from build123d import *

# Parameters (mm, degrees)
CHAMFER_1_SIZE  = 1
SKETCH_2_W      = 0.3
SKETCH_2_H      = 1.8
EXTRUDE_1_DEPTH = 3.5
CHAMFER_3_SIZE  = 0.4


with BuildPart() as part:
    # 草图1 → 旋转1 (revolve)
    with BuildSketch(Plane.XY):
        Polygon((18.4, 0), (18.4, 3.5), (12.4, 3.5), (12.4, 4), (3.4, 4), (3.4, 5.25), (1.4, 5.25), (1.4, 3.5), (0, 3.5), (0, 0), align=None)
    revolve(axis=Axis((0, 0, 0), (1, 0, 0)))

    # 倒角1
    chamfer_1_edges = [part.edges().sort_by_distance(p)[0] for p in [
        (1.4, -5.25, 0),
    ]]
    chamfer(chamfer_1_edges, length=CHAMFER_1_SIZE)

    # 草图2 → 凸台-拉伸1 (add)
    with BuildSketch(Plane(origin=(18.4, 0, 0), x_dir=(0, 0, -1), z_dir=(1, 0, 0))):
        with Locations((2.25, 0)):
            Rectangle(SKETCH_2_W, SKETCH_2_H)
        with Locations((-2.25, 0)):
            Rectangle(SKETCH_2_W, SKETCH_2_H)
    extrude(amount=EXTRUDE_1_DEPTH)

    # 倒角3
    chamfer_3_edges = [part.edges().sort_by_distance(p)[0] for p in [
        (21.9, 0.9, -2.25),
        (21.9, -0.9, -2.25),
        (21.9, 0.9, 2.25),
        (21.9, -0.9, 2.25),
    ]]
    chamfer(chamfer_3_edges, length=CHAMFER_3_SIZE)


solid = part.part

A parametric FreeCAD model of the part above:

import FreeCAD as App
import Part
import Sketcher


def edges_at(feature, points):
    """Names of the edges that pass closest to the given points."""
    edges = feature.Shape.Edges
    near = lambda p: min(range(len(edges)), key=lambda i: edges[i].distToShape(Part.Vertex(*p))[0])
    return sorted({f"Edge{near(p) + 1}" for p in points})

doc = App.newDocument("Part")
body = doc.addObject("PartDesign::Body", "Body")

sketch1 = body.newObject("Sketcher::SketchObject", "Sketch")
sketch1.AttachmentSupport = (doc.getObject("XY_Plane"), [""])
sketch1.MapMode = "FlatFace"
sketch1.addGeometry([
    Part.LineSegment(App.Vector(18.4, 0, 0), App.Vector(18.4, 3.5, 0)),
    Part.LineSegment(App.Vector(18.4, 3.5, 0), App.Vector(12.4, 3.5, 0)),
    Part.LineSegment(App.Vector(12.4, 3.5, 0), App.Vector(12.4, 4, 0)),
    Part.LineSegment(App.Vector(12.4, 4, 0), App.Vector(3.4, 4, 0)),
    Part.LineSegment(App.Vector(3.4, 4, 0), App.Vector(3.4, 5.2, 0)),
    Part.LineSegment(App.Vector(3.4, 5.2, 0), App.Vector(1.4, 5.2, 0)),
    Part.LineSegment(App.Vector(1.4, 5.2, 0), App.Vector(1.4, 3.5, 0)),
    Part.LineSegment(App.Vector(1.4, 3.5, 0), App.Vector(0, 3.5, 0)),
    Part.LineSegment(App.Vector(0, 3.5, 0), App.Vector(0, 0, 0)),
    Part.LineSegment(App.Vector(0, 0, 0), App.Vector(18.4, 0, 0)),
], False)
sketch1.addConstraint([
    Sketcher.Constraint("Coincident", 0, 2, 1, 1),
    Sketcher.Constraint("Coincident", 1, 2, 2, 1),
    Sketcher.Constraint("Coincident", 2, 2, 3, 1),
    Sketcher.Constraint("Coincident", 3, 2, 4, 1),
    Sketcher.Constraint("Coincident", 4, 2, 5, 1),
    Sketcher.Constraint("Coincident", 5, 2, 6, 1),
    Sketcher.Constraint("Coincident", 6, 2, 7, 1),
    Sketcher.Constraint("Coincident", 7, 2, 8, 1),
    Sketcher.Constraint("Coincident", 8, 2, 9, 1),
    Sketcher.Constraint("Coincident", 9, 2, 0, 1),
    Sketcher.Constraint("Vertical", 0),
    Sketcher.Constraint("Horizontal", 1),
    Sketcher.Constraint("Vertical", 2),
    Sketcher.Constraint("Horizontal", 3),
    Sketcher.Constraint("Vertical", 4),
    Sketcher.Constraint("Horizontal", 5),
    Sketcher.Constraint("Vertical", 6),
    Sketcher.Constraint("Horizontal", 7),
    Sketcher.Constraint("Vertical", 8),
    Sketcher.Constraint("Horizontal", 9),
    Sketcher.Constraint("Coincident", 8, 2, -1, 1),
    Sketcher.Constraint("Horizontal", 1, 2, 6, 2),
    Sketcher.Constraint("DistanceX", 1, 2, 1, 1, 6.0),
    Sketcher.Constraint("DistanceX", 3, 2, 3, 1, 9.0),
    Sketcher.Constraint("DistanceX", 5, 2, 5, 1, 2.0),
    Sketcher.Constraint("DistanceX", 7, 2, 7, 1, 1.4),
    Sketcher.Constraint("DistanceY", 0, 1, 0, 2, 3.5),
    Sketcher.Constraint("DistanceY", 2, 1, 2, 2, 0.5),
    Sketcher.Constraint("DistanceY", 4, 1, 4, 2, 1.25),
])
revolution = body.newObject("PartDesign::Revolution", "Revolution")
revolution.Profile = sketch1
revolution.ReferenceAxis = (sketch1, ["H_Axis"])
revolution.Angle = 360
doc.recompute()

chamfer = body.newObject("PartDesign::Chamfer", "Chamfer")
chamfer.Base = (revolution, edges_at(revolution, [(1.4, -5.25, 0)]))
chamfer.Size = 1

sketch2 = body.newObject("Sketcher::SketchObject", "Sketch001")
sketch2.AttachmentSupport = (doc.getObject("YZ_Plane"), [""])
sketch2.MapMode = "FlatFace"
sketch2.AttachmentOffset = App.Placement(App.Vector(0, 0, 18.4), App.Rotation())
sketch2.addGeometry([
    Part.LineSegment(App.Vector(0.9, -2.1, 0), App.Vector(-0.9, -2.1, 0)),
    Part.LineSegment(App.Vector(-0.9, -2.1, 0), App.Vector(-0.9, -2.4, 0)),
    Part.LineSegment(App.Vector(-0.9, -2.4, 0), App.Vector(0.9, -2.4, 0)),
    Part.LineSegment(App.Vector(0.9, -2.4, 0), App.Vector(0.9, -2.1, 0)),
    Part.LineSegment(App.Vector(0.9, 2.4, 0), App.Vector(-0.9, 2.4, 0)),
    Part.LineSegment(App.Vector(-0.9, 2.4, 0), App.Vector(-0.9, 2.1, 0)),
    Part.LineSegment(App.Vector(-0.9, 2.1, 0), App.Vector(0.9, 2.1, 0)),
    Part.LineSegment(App.Vector(0.9, 2.1, 0), App.Vector(0.9, 2.4, 0)),
], False)
sketch2.addConstraint([
    Sketcher.Constraint("Coincident", 0, 2, 1, 1),
    Sketcher.Constraint("Coincident", 1, 2, 2, 1),
    Sketcher.Constraint("Coincident", 2, 2, 3, 1),
    Sketcher.Constraint("Coincident", 3, 2, 0, 1),
    Sketcher.Constraint("Coincident", 4, 2, 5, 1),
    Sketcher.Constraint("Coincident", 5, 2, 6, 1),
    Sketcher.Constraint("Coincident", 6, 2, 7, 1),
    Sketcher.Constraint("Coincident", 7, 2, 4, 1),
    Sketcher.Constraint("Horizontal", 0),
    Sketcher.Constraint("Vertical", 1),
    Sketcher.Constraint("Horizontal", 2),
    Sketcher.Constraint("Vertical", 3),
    Sketcher.Constraint("Horizontal", 4),
    Sketcher.Constraint("Vertical", 5),
    Sketcher.Constraint("Horizontal", 6),
    Sketcher.Constraint("Vertical", 7),
    Sketcher.Constraint("Symmetric", 2, 2, 4, 2, -1, 1),
    Sketcher.Constraint("Symmetric", 0, 2, 6, 2, -1, 1),
    Sketcher.Constraint("Vertical", 1, 2, 4, 2),
    Sketcher.Constraint("DistanceX", 0, 2, 0, 1, 1.8),
    Sketcher.Constraint("DistanceY", 1, 2, 1, 1, 0.3),
    Sketcher.Constraint("DistanceY", 0, 2, -1, 1, 2.1),
])
pad1 = body.newObject("PartDesign::Pad", "Pad")
pad1.Profile = sketch2
pad1.Length = 3.5
doc.recompute()

chamfer2 = body.newObject("PartDesign::Chamfer", "Chamfer001")
chamfer2.Base = (pad1, edges_at(pad1, [
    (21.9, 0.9, -2.25),
    (21.9, -0.9, -2.25),
    (21.9, 0.9, 2.25),
    (21.9, -0.9, 2.25),
]))
chamfer2.Size = 0.4

doc.recompute()
